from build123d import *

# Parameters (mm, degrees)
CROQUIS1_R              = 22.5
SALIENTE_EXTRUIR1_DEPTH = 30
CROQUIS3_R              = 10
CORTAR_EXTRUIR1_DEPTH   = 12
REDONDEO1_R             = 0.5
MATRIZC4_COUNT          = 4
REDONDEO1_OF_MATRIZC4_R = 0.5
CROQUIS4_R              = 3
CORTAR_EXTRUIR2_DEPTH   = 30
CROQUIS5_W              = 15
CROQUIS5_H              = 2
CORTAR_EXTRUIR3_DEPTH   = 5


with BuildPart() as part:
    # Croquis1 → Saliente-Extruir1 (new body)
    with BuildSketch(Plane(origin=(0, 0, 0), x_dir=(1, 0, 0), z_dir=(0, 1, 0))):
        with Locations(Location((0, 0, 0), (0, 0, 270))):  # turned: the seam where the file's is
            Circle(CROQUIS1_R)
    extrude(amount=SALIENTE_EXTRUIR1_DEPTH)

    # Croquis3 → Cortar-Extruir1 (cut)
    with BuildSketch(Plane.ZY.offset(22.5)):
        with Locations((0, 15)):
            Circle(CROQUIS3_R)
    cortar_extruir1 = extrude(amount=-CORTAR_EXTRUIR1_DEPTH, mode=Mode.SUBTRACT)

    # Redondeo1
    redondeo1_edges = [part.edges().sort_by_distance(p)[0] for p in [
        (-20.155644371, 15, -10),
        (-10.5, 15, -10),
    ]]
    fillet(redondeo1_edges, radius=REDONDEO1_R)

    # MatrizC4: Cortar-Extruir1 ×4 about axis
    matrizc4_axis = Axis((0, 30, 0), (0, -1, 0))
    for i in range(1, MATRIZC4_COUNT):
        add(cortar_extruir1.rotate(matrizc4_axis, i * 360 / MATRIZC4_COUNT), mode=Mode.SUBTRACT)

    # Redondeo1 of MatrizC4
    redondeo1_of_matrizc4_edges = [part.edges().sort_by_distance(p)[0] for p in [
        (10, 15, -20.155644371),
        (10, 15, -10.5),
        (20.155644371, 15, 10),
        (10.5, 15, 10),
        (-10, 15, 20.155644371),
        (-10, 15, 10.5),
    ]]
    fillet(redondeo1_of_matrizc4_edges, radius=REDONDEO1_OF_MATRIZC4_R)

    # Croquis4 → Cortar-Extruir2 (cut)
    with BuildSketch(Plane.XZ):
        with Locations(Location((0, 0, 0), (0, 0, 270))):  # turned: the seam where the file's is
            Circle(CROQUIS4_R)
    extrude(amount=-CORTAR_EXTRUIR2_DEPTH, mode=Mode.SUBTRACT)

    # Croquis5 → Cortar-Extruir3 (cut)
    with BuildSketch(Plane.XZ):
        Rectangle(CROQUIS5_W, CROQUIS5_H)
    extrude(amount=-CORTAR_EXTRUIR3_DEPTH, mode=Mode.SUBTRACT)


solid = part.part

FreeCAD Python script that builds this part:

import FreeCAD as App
import Part
import Sketcher

V = App.Vector
Q = App.Units.Quantity


def edges_at(feature, points):
    """Names of the edges that pass closest to the given points."""
    edges = feature.Shape.Edges
    near = lambda p: min(range(len(edges)), key=lambda i: edges[i].distToShape(Part.Vertex(*p))[0])
    return sorted({f"Edge{near(p) + 1}" for p in points})


def add_polygon(sketch, points):
    """Adds a closed chain of lines whose ends are joined by coincident constraints."""
    first, n = sketch.GeometryCount, len(points)
    for a, b in zip(points, points[1:] + points[:1]):
        sketch.addGeometry(Part.LineSegment(App.Vector(*a, 0), App.Vector(*b, 0)), False)
    for i in range(n):
        sketch.addConstraint(Sketcher.Constraint("Coincident", first + i, 2, first + (i + 1) % n, 1))

doc = App.newDocument("Part")
body = doc.addObject("PartDesign::Body", "Body")

# Sketch on XZ plane
sketch1 = doc.addObject("Sketcher::SketchObject", "Sketch")
body.addObject(sketch1)
sketch1.AttachmentSupport = (doc.XZ_Plane, [""])
sketch1.MapMode = "FlatFace"
sketch1.addGeometry(Part.Circle(V(0, 0, 0), V(0, 0, 1), 22), False)
sketch1.addConstraint([
    Sketcher.Constraint("Coincident", 0, 3, -1, 1),
    Sketcher.Constraint("Diameter", 0, Q("45 mm")),
])
pad1 = doc.addObject("PartDesign::Pad", "Pad")
body.addObject(pad1)
pad1.Profile = sketch1
pad1.Length = 30
pad1.Reversed = True

# Sketch on YZ plane
sketch2 = doc.addObject("Sketcher::SketchObject", "Sketch001")
body.addObject(sketch2)
sketch2.AttachmentSupport = (doc.YZ_Plane, [""])
sketch2.MapMode = "FlatFace"
sketch2.AttachmentOffset = App.Placement(V(0, 0, -22.5), App.Rotation())
sketch2.addGeometry(Part.Circle(V(15, 0, 0), V(0, 0, 1), 10), False)
sketch2.addConstraint([
    Sketcher.Constraint("PointOnObject", 0, 3, -1),
    Sketcher.Constraint("Diameter", 0, Q("20 mm")),
    Sketcher.Constraint("DistanceX", -1, 1, 0, 3, Q("15 mm")),
])
pocket1 = doc.addObject("PartDesign::Pocket", "Pocket")
body.addObject(pocket1)
pocket1.Profile = sketch2
pocket1.Length = 12
pocket1.Reversed = True
doc.recompute()

fillet = doc.addObject("PartDesign::Fillet", "Fillet")
body.addObject(fillet)
fillet.Base = (pocket1, edges_at(pocket1, [(-20.156, 15, -10), (-10.5, 15, -10)]))
fillet.Radius = 0.5
doc.recompute()

polarpattern = doc.addObject("PartDesign::PolarPattern", "PolarPattern")
body.addObject(polarpattern)
polarpattern.Originals = [pocket1]
polarpattern.Axis = (doc.Y_Axis, [""])
polarpattern.Angle = 360
polarpattern.Occurrences = 4
body.Tip = polarpattern
doc.recompute()

fillet2 = doc.addObject("PartDesign::Fillet", "Fillet001")
body.addObject(fillet2)
fillet2.Base = (polarpattern, edges_at(polarpattern, [
    (10, 15, -20.156),
    (10, 15, -10.5),
    (20.156, 15, 10),
    (10.5, 15, 10),
    (-10, 15, 20.156),
    (-10, 15, 10.5),
]))
fillet2.Radius = 0.5

# Sketch on XZ plane
sketch3 = doc.addObject("Sketcher::SketchObject", "Sketch002")
body.addObject(sketch3)
sketch3.AttachmentSupport = (doc.XZ_Plane, [""])
sketch3.MapMode = "FlatFace"
sketch3.addGeometry(Part.Circle(V(0, 0, 0), V(0, 0, 1), 3), False)
sketch3.addConstraint([
    Sketcher.Constraint("Coincident", 0, 3, -1, 1),
    Sketcher.Constraint("Diameter", 0, Q("6 mm")),
])
pocket2 = doc.addObject("PartDesign::Pocket", "Pocket001")
body.addObject(pocket2)
pocket2.Profile = sketch3
pocket2.Length = 30

# Sketch on XZ plane
sketch4 = doc.addObject("Sketcher::SketchObject", "Sketch003")
body.addObject(sketch4)
sketch4.AttachmentSupport = (doc.XZ_Plane, [""])
sketch4.MapMode = "FlatFace"
add_polygon(sketch4, [(-7.5, 1), (-7.5, -1), (7.5, -1), (7.5, 1)])  # lines 0-3
sketch4.addConstraint([
    Sketcher.Constraint("Vertical", 0),
    Sketcher.Constraint("Horizontal", 1),
    Sketcher.Constraint("Vertical", 2),
    Sketcher.Constraint("Horizontal", 3),
    Sketcher.Constraint("Symmetric", 0, 2, 2, 2, -1, 1),
    Sketcher.Constraint("DistanceX", 1, 1, 1, 2, Q("15 mm")),
    Sketcher.Constraint("DistanceY", 0, 2, 0, 1, Q("2 mm")),
])
pocket3 = doc.addObject("PartDesign::Pocket", "Pocket002")
body.addObject(pocket3)
pocket3.Profile = sketch4
pocket3.Length = 5

doc.recompute()
